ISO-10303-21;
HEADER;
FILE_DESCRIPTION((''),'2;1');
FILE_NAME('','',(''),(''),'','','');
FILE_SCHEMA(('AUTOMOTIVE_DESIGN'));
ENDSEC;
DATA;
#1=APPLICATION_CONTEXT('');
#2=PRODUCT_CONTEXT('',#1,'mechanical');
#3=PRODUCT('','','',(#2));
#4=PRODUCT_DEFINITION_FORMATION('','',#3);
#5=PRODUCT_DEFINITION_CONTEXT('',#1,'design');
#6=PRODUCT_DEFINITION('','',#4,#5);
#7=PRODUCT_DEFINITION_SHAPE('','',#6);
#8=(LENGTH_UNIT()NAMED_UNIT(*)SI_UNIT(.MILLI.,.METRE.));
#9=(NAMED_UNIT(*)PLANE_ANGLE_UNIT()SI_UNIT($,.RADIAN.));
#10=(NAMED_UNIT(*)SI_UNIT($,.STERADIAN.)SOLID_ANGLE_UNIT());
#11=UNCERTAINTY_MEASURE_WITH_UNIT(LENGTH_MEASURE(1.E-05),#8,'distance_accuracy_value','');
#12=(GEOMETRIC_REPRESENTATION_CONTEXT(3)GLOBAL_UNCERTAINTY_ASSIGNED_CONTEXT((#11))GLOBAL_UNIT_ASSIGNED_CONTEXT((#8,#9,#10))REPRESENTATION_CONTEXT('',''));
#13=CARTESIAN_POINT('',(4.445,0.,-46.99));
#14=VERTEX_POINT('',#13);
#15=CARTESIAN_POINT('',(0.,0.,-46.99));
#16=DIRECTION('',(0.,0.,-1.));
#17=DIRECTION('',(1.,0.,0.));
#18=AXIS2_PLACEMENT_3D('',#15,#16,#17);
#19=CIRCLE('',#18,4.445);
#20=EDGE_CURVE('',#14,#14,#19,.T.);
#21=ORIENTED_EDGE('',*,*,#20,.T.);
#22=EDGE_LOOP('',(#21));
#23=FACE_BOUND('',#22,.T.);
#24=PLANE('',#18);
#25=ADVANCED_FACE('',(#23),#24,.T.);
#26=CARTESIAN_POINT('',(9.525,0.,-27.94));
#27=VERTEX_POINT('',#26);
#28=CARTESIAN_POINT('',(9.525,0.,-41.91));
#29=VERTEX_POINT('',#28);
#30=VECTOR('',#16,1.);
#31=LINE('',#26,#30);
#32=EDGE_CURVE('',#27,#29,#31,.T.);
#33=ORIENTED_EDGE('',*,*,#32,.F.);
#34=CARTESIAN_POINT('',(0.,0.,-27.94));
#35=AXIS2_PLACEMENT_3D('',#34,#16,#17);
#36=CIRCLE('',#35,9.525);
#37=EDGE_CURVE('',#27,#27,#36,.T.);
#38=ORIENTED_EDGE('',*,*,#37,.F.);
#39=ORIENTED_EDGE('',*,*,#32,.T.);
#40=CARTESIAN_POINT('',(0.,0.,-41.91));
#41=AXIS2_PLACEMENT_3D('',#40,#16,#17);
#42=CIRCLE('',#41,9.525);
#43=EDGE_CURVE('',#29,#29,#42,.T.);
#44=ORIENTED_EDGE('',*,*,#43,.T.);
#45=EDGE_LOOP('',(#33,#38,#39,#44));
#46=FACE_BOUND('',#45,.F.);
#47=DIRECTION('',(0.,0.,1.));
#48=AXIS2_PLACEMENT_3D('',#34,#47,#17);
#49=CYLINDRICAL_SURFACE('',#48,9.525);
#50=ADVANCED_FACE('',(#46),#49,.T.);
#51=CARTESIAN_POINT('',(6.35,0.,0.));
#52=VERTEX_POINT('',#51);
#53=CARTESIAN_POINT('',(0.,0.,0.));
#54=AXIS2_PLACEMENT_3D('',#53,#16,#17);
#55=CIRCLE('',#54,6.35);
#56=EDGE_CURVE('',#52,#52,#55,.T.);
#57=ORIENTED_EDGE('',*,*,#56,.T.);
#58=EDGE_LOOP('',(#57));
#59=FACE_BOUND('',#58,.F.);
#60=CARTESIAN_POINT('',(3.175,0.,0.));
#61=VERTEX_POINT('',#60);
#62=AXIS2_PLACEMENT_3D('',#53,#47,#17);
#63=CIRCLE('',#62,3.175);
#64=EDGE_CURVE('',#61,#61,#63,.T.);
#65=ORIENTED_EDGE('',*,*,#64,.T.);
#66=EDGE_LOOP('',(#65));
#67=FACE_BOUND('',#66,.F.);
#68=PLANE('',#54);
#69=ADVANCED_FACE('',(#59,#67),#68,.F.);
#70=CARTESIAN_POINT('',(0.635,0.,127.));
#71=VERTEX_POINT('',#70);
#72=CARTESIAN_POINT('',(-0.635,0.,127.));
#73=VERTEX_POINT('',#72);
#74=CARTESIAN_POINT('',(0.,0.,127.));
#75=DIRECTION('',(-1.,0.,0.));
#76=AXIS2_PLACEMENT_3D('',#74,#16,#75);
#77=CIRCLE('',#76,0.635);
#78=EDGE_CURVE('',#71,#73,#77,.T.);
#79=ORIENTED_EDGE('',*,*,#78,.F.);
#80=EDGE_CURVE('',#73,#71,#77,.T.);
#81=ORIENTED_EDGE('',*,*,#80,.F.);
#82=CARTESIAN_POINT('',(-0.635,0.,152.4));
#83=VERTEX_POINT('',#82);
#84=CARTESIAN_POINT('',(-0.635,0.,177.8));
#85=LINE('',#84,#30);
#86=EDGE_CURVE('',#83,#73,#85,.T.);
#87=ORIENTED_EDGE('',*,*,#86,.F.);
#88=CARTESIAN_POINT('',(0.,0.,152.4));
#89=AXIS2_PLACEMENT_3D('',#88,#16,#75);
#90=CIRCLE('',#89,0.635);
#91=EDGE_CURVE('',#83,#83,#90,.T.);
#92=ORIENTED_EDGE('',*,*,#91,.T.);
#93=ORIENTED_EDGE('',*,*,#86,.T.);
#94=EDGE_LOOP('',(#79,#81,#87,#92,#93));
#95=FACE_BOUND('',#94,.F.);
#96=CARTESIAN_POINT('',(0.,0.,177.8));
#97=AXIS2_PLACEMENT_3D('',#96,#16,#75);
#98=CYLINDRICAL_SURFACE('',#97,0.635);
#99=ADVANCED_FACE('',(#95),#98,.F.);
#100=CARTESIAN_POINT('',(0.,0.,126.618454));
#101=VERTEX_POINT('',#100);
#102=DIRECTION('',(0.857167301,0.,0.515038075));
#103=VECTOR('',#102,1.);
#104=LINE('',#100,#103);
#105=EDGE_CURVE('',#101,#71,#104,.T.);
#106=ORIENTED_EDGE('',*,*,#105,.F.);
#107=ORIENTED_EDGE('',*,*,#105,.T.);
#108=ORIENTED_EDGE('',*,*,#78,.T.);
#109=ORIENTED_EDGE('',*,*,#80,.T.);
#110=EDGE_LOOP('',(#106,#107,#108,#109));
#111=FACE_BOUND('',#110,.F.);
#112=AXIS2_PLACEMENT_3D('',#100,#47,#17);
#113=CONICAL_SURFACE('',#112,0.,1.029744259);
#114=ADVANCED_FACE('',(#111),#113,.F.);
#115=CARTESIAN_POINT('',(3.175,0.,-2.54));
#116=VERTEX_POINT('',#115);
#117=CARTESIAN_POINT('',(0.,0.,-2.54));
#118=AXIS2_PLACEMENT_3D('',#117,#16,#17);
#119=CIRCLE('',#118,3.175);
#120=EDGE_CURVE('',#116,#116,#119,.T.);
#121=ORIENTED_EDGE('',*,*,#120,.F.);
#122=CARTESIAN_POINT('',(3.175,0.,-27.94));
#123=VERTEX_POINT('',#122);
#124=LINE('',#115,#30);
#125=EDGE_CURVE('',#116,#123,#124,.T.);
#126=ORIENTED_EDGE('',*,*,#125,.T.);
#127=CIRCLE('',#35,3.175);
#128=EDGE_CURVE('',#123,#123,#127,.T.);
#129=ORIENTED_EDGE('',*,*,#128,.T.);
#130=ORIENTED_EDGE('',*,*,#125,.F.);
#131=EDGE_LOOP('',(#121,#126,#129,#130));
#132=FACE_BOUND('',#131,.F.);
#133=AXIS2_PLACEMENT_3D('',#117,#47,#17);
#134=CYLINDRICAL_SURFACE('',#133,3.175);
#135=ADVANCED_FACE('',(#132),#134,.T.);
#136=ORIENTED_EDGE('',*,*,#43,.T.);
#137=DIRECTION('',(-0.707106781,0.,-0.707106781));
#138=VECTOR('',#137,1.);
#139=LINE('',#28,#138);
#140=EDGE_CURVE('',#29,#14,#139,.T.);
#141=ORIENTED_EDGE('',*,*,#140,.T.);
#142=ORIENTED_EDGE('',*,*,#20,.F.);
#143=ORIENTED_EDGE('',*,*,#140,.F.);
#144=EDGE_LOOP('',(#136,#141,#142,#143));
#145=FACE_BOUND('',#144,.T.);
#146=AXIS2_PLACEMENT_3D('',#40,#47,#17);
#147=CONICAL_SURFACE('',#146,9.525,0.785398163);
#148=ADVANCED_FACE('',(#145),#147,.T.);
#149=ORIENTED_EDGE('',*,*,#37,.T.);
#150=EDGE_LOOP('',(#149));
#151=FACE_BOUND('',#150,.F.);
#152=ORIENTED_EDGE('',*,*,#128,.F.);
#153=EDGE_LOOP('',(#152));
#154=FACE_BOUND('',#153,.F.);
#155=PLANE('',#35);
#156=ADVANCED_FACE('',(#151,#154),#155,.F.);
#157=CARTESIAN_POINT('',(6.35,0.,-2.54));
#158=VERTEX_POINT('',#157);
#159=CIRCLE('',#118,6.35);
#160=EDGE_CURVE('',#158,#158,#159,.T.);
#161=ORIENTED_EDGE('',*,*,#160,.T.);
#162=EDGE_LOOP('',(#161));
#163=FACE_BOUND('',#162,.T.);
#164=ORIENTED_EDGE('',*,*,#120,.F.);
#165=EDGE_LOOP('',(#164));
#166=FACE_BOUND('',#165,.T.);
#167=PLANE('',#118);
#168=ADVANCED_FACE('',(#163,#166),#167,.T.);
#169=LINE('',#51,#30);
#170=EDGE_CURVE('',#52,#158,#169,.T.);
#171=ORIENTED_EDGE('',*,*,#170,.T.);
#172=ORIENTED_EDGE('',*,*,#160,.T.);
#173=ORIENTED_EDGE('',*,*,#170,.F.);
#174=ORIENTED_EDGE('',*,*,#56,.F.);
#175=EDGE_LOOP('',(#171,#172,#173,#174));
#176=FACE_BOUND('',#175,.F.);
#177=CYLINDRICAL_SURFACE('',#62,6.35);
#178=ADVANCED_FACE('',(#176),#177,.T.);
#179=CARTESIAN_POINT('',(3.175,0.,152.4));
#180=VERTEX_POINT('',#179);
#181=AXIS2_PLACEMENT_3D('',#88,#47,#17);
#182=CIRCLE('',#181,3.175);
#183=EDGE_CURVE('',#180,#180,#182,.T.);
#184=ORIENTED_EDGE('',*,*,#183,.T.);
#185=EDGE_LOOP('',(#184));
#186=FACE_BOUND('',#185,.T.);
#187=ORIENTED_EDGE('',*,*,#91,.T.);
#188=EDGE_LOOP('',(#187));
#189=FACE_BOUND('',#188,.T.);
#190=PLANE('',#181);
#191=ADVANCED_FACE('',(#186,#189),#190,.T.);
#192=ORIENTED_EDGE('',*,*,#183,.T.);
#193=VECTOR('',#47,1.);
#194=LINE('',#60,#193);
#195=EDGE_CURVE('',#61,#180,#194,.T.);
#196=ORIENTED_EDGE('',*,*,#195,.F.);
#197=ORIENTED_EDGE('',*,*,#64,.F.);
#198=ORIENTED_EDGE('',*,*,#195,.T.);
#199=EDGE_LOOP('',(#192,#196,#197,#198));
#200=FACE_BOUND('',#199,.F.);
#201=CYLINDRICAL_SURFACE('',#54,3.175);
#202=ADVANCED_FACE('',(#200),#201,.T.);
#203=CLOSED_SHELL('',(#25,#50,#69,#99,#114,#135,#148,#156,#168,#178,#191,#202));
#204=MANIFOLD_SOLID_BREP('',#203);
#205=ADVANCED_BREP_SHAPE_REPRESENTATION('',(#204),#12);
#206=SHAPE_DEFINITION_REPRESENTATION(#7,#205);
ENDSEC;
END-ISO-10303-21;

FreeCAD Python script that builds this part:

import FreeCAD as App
import Part
import Sketcher
from FreeCAD import Vector
Q = App.Units.Quantity


def edges_at(feature, points):
    """Names of the edges that pass closest to the given points."""
    edges = feature.Shape.Edges
    near = lambda p: min(range(len(edges)), key=lambda i: edges[i].distToShape(Part.Vertex(*p))[0])
    return sorted({f"Edge{near(p) + 1}" for p in points})

doc = App.newDocument("Part")
params = doc.addObject("Spreadsheet::Sheet", "Params")
for row, (alias, value) in enumerate([
    ("sketch1_diameter", "0.25 in"),
    ("pad1_length", "6 in"),
    ("sketch2_diameter", "0.5 in"),
    ("pad2_length", "0.1 in"),
    ("sketch3_diameter", "0.25 in"),
    ("pad3_length", "1 in"),
    ("sketch4_diameter", "0.75 in"),
    ("pad4_length", "0.75 in"),
    ("chamfer_size", "0.2 in"),
    ("sketch5_diameter", "0.05 in"),
    ("hole_diameter", "0.05 in"),
    ("hole_depth", "1 in"),
], start=1):
    params.set(f"A{row}", alias)
    params.set(f"B{row}", "=" + value)
    params.setAlias(f"B{row}", alias)

body = doc.addObject("PartDesign::Body", "Body")

# Sketch on XY plane
sketch1 = body.newObject("Sketcher::SketchObject", "Sketch")
sketch1.AttachmentSupport = (doc.getObject("XY_Plane"), [""])
sketch1.MapMode = "FlatFace"
sketch1.addGeometry(Part.Circle(Vector(0, 0, 0), Vector(0, 0, 1), 3.2), False)
sketch1.addConstraint(Sketcher.Constraint("Coincident", 0, 3, -1, 1))
sketch1.addConstraint(Sketcher.Constraint("Diameter", 0, Q("0.25 in")))
sketch1.setExpression("Constraints[1]", "Params.sketch1_diameter")
pad1 = body.newObject("PartDesign::Pad", "Pad")
pad1.Profile = sketch1
pad1.setExpression("Length", "Params.pad1_length")

# Sketch on XY plane
sketch2 = body.newObject("Sketcher::SketchObject", "Sketch001")
sketch2.AttachmentSupport = (doc.getObject("XY_Plane"), [""])
sketch2.MapMode = "FlatFace"
sketch2.addGeometry(Part.Circle(Vector(0, 0, 0), Vector(0, 0, 1), 6), False)
sketch2.addConstraint(Sketcher.Constraint("Coincident", 0, 3, -1, 1))
sketch2.addConstraint(Sketcher.Constraint("Diameter", 0, Q("0.5 in")))
sketch2.setExpression("Constraints[1]", "Params.sketch2_diameter")
pad2 = body.newObject("PartDesign::Pad", "Pad001")
pad2.Profile = sketch2
pad2.setExpression("Length", "Params.pad2_length")
pad2.Reversed = True

# Sketch on XY plane
sketch3 = body.newObject("Sketcher::SketchObject", "Sketch002")
sketch3.AttachmentSupport = (doc.getObject("XY_Plane"), [""])
sketch3.MapMode = "FlatFace"
sketch3.AttachmentOffset = App.Placement(Vector(0, 0, -0.1 * 25.4), App.Rotation())
sketch3.addGeometry(Part.Circle(Vector(0, 0, 0), Vector(0, 0, 1), 3.2), False)
sketch3.addConstraint(Sketcher.Constraint("Coincident", 0, 3, -1, 1))
sketch3.addConstraint(Sketcher.Constraint("Diameter", 0, Q("0.25 in")))
sketch3.setExpression("Constraints[1]", "Params.sketch3_diameter")
pad3 = body.newObject("PartDesign::Pad", "Pad002")
pad3.Profile = sketch3
pad3.setExpression("Length", "Params.pad3_length")
pad3.Reversed = True

# Sketch on XY plane
sketch4 = body.newObject("Sketcher::SketchObject", "Sketch003")
sketch4.AttachmentSupport = (doc.getObject("XY_Plane"), [""])
sketch4.MapMode = "FlatFace"
sketch4.AttachmentOffset = App.Placement(Vector(0, 0, -1.1 * 25.4), App.Rotation())
sketch4.addGeometry(Part.Circle(Vector(0, 0, 0), Vector(0, 0, 1), 10), False)
sketch4.addConstraint(Sketcher.Constraint("Coincident", 0, 3, -1, 1))
sketch4.addConstraint(Sketcher.Constraint("Diameter", 0, Q("0.75 in")))
sketch4.setExpression("Constraints[1]", "Params.sketch4_diameter")
pad4 = body.newObject("PartDesign::Pad", "Pad003")
pad4.Profile = sketch4
pad4.setExpression("Length", "Params.pad4_length")
pad4.Reversed = True
doc.recompute()

chamfer = body.newObject("PartDesign::Chamfer", "Chamfer")
chamfer.Base = (pad4, edges_at(pad4, [(-9.525, 0, -46.99)]))
chamfer.setExpression("Size", "Params.chamfer_size")

# Sketch on XY plane
sketch5 = body.newObject("Sketcher::SketchObject", "Sketch004")
sketch5.AttachmentSupport = (doc.getObject("XY_Plane"), [""])
sketch5.MapMode = "FlatFace"
sketch5.AttachmentOffset = App.Placement(Vector(0, 0, 6 * 25.4), App.Rotation())
sketch5.addGeometry(Part.Circle(Vector(0, 0, 0), Vector(0, 0, 1), 0.6), False)
sketch5.addConstraint(Sketcher.Constraint("Coincident", 0, 3, -1, 1))
sketch5.addConstraint(Sketcher.Constraint("Diameter", 0, Q("0.05 in")))
sketch5.setExpression("Constraints[1]", "Params.sketch5_diameter")
doc.recompute()
hole = body.newObject("PartDesign::Hole", "Hole")
hole.Profile = sketch5
hole.ThreadType = "None"
hole.setExpression("Diameter", "Params.hole_diameter")
hole.DepthType = "Dimension"
hole.setExpression("Depth", "Params.hole_depth")
hole.DrillPoint = "Angled"
hole.DrillPointAngle = 118

doc.recompute()
